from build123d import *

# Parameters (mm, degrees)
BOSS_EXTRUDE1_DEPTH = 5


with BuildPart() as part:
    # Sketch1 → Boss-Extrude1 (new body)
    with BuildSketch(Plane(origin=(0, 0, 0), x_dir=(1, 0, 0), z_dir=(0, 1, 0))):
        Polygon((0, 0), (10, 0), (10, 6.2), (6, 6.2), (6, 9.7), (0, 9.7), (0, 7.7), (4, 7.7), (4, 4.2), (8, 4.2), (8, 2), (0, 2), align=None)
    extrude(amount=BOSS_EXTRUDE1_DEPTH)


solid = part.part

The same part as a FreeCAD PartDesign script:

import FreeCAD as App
import Part
import Sketcher
from FreeCAD import Vector


def add_polygon(sketch, points):
    """Adds a closed chain of lines whose ends are joined by coincident constraints."""
    first, n = sketch.GeometryCount, len(points)
    for a, b in zip(points, points[1:] + points[:1]):
        sketch.addGeometry(Part.LineSegment(App.Vector(*a, 0), App.Vector(*b, 0)), False)
    for i in range(n):
        sketch.addConstraint(Sketcher.Constraint("Coincident", first + i, 2, first + (i + 1) % n, 1))

doc = App.newDocument("Part")
body = doc.addObject("PartDesign::Body", "Body")

sketch1 = doc.addObject("Sketcher::SketchObject", "Sketch")
body.addObject(sketch1)
sketch1.AttachmentSupport = (doc.XZ_Plane, [""])
sketch1.MapMode = "FlatFace"
add_polygon(sketch1, [(0, 0), (10, 0), (10, -6.2), (6, -6.2), (6, -9.7), (0, -9.7), (0, -7.7), (4, -7.7), (4, -4.2), (8, -4.2), (8, -2), (0, -2)])
sketch1.addConstraint([
    Sketcher.Constraint("Horizontal", 0),
    Sketcher.Constraint("Vertical", 1),
    Sketcher.Constraint("Horizontal", 2),
    Sketcher.Constraint("Vertical", 3),
    Sketcher.Constraint("Horizontal", 4),
    Sketcher.Constraint("Vertical", 5),
    Sketcher.Constraint("Horizontal", 6),
    Sketcher.Constraint("Vertical", 7),
    Sketcher.Constraint("Horizontal", 8),
    Sketcher.Constraint("Vertical", 9),
    Sketcher.Constraint("Horizontal", 10),
    Sketcher.Constraint("Vertical", 11),
    Sketcher.Constraint("Coincident", 11, 2, -1, 1),
    Sketcher.Constraint("PointOnObject", 4, 2, -2),
    Sketcher.Constraint("Equal", 2, 6),
    Sketcher.Constraint("Equal", 6, 8),
    Sketcher.Constraint("Equal", 3, 7),
    Sketcher.Constraint("Equal", 5, 11),
    Sketcher.Constraint("DistanceX", 0, 1, 0, 2, 10.0),
    Sketcher.Constraint("DistanceX", 2, 2, 2, 1, 4.0),
    Sketcher.Constraint("DistanceY", 5, 1, 5, 2, 2.0),
    Sketcher.Constraint("DistanceY", 1, 2, 1, 1, 6.2),
    Sketcher.Constraint("DistanceY", 3, 2, 3, 1, 3.5),
])
pad1 = doc.addObject("PartDesign::Pad", "Pad")
body.addObject(pad1)
pad1.Profile = sketch1
pad1.Length = 5
pad1.Reversed = True

doc.recompute()
